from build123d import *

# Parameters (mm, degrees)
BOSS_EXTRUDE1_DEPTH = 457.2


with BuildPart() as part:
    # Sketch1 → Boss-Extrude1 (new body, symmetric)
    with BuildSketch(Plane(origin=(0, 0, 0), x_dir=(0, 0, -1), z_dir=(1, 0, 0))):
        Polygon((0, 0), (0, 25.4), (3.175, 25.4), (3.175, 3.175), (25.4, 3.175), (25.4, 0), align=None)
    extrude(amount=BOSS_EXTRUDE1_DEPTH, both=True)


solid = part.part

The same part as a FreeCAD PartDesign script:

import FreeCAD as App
import Part
import Sketcher
from FreeCAD import Vector
Q = App.Units.Quantity


def add_polygon(sketch, points):
    """Adds a closed chain of lines whose ends are joined by coincident constraints."""
    first, n = sketch.GeometryCount, len(points)
    for a, b in zip(points, points[1:] + points[:1]):
        sketch.addGeometry(Part.LineSegment(App.Vector(*a, 0), App.Vector(*b, 0)), False)
    for i in range(n):
        sketch.addConstraint(Sketcher.Constraint("Coincident", first + i, 2, first + (i + 1) % n, 1))

doc = App.newDocument("Part")
body = doc.addObject("PartDesign::Body", "Body")

# Sketch on YZ plane
sketch1 = doc.addObject("Sketcher::SketchObject", "Sketch")
body.addObject(sketch1)
sketch1.AttachmentSupport = (doc.YZ_Plane, [""])
sketch1.MapMode = "FlatFace"
add_polygon(sketch1, [(25.4, 0), (0, 0), (0, -25.4), (3.175, -25.4), (3.175, -3.175), (25.4, -3.175)])  # lines 0-5
sketch1.addConstraint([
    Sketcher.Constraint("Horizontal", 0),
    Sketcher.Constraint("Vertical", 1),
    Sketcher.Constraint("Horizontal", 2),
    Sketcher.Constraint("Vertical", 3),
    Sketcher.Constraint("Horizontal", 4),
    Sketcher.Constraint("Vertical", 5),
    Sketcher.Constraint("Coincident", 0, 2, -1, 1),
    Sketcher.Constraint("Equal", 0, 1),
    Sketcher.Constraint("Equal", 4, 3),
    Sketcher.Constraint("DistanceX", 0, 2, 0, 1, Q("1 in")),
    Sketcher.Constraint("DistanceX", 2, 1, 2, 2, Q("0.125 in")),
])
pad1 = doc.addObject("PartDesign::Pad", "Pad")
body.addObject(pad1)
pad1.Profile = sketch1
pad1.Length = Q("36 in")
pad1.Midplane = True

doc.recompute()
